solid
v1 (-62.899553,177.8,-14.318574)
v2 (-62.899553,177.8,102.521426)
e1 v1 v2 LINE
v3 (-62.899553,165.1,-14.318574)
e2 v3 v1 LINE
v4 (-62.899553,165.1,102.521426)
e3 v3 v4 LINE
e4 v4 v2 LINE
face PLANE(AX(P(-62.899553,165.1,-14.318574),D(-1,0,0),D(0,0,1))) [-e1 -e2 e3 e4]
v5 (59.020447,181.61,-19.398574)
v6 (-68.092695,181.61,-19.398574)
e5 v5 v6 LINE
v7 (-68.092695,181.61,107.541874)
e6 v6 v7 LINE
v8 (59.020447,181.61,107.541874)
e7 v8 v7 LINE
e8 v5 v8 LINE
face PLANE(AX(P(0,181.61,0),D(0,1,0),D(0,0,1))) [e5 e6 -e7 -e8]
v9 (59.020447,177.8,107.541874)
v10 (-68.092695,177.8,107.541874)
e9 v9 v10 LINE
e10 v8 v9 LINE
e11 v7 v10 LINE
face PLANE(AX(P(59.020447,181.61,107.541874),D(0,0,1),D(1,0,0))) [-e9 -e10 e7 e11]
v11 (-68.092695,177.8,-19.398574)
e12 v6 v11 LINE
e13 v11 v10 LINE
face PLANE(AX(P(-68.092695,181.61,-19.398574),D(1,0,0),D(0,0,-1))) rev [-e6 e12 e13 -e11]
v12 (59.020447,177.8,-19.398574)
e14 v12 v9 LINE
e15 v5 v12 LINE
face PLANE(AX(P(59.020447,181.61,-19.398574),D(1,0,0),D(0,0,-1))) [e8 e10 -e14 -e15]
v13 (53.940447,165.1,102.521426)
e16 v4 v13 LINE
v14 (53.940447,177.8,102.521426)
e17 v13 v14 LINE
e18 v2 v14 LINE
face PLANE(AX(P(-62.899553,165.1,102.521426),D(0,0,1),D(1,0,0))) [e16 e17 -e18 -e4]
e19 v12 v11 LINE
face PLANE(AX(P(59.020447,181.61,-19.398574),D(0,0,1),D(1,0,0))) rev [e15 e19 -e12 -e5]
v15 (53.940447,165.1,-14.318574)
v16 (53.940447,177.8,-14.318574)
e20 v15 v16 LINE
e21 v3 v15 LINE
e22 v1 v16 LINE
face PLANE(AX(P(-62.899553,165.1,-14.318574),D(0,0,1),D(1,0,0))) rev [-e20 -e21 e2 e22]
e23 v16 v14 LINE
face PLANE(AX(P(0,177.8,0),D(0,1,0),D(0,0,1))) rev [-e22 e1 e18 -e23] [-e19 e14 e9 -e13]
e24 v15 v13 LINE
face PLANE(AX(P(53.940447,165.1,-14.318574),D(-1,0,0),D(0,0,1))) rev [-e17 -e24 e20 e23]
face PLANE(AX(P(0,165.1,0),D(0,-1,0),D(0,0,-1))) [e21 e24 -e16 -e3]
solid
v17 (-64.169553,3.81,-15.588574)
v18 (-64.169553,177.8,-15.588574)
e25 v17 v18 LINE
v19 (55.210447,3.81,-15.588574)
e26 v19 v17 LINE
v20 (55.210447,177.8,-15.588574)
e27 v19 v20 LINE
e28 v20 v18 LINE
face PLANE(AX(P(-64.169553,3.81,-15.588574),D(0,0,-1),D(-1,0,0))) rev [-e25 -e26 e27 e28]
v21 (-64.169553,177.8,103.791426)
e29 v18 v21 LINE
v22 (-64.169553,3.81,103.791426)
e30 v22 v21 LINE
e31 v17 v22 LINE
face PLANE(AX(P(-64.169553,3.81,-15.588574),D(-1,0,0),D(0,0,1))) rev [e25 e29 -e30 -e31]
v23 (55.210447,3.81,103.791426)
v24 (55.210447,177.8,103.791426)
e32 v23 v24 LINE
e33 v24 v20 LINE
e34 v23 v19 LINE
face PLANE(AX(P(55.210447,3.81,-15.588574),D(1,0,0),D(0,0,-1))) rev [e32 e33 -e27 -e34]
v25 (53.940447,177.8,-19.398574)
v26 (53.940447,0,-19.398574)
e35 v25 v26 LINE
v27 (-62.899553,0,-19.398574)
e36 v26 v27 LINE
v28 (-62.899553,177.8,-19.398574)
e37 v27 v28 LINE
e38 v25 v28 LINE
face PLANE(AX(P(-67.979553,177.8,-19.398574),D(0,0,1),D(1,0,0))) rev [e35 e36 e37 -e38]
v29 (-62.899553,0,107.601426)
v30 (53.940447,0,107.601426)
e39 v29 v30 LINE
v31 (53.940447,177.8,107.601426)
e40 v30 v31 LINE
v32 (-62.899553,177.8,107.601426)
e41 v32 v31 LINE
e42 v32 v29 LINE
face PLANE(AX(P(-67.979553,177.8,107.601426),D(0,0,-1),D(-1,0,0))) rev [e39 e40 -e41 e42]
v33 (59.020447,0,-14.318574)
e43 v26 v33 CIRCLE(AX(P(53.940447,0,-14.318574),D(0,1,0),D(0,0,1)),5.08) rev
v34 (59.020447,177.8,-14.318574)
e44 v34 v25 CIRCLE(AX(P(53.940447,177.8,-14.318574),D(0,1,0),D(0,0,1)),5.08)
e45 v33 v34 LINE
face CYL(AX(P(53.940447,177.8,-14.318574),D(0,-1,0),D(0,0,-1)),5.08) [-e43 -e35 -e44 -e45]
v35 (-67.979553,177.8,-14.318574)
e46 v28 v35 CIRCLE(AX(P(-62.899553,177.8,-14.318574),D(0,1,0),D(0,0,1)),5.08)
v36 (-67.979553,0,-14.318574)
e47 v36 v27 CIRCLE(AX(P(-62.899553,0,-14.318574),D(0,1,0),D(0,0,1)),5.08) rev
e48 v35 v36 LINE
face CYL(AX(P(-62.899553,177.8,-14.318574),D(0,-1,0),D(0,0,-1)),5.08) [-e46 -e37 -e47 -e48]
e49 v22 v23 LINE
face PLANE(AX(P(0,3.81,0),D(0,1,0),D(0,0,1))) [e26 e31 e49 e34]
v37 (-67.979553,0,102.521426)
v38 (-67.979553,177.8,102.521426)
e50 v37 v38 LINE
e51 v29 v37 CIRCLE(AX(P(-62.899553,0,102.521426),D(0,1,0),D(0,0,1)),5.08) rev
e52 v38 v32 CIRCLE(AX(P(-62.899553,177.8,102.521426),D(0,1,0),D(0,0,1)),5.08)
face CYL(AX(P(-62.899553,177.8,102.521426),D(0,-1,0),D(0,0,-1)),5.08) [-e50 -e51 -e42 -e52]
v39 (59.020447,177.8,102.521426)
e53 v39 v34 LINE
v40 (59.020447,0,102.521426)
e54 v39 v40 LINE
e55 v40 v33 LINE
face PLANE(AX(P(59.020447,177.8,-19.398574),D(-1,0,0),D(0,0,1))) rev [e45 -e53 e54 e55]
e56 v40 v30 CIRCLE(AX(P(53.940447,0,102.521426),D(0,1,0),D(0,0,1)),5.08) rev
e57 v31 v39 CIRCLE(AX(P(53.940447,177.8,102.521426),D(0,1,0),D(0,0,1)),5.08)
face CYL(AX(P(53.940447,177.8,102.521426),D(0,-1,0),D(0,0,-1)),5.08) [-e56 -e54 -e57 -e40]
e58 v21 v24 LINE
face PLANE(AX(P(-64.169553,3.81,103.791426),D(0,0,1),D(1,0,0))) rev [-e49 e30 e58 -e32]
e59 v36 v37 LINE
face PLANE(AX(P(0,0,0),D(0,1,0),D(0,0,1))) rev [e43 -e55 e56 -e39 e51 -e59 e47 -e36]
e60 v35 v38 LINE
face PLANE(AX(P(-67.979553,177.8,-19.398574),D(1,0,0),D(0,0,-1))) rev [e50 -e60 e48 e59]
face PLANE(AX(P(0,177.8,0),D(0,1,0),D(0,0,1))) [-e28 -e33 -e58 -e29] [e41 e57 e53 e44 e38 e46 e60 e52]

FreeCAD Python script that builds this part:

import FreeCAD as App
import Part
import Sketcher

V = App.Vector
Q = App.Units.Quantity


def edges_at(feature, points):
    """Names of the edges that pass closest to the given points."""
    edges = feature.Shape.Edges
    near = lambda p: min(range(len(edges)), key=lambda i: edges[i].distToShape(Part.Vertex(*p))[0])
    return sorted({f"Edge{near(p) + 1}" for p in points})


def add_polygon(sketch, points):
    """Adds a closed chain of lines whose ends are joined by coincident constraints."""
    first, n = sketch.GeometryCount, len(points)
    for a, b in zip(points, points[1:] + points[:1]):
        sketch.addGeometry(Part.LineSegment(App.Vector(*a, 0), App.Vector(*b, 0)), False)
    for i in range(n):
        sketch.addConstraint(Sketcher.Constraint("Coincident", first + i, 2, first + (i + 1) % n, 1))

doc = App.newDocument("Part")
params = doc.addObject("Spreadsheet::Sheet", "Params")
for row, (alias, value) in enumerate([
    ("sketch1_width", "5 in"),
    ("pad1_length", "7 in"),
    ("sketch2_width", "4.7 in"),
    ("pocket1_length", "6.85 in"),
    ("fillet_radius", "0.2 in"),
    ("sketch3_width", "4.6 in"),
    ("pad2_length", "0.5 in"),
    ("pad3_length", "0.15 in"),
], start=1):
    params.set(f"A{row}", alias)
    params.set(f"B{row}", "=" + value)
    params.setAlias(f"B{row}", alias)

body = doc.addObject("PartDesign::Body", "Body")

# Sketch on XZ plane
sketch1 = body.newObject("Sketcher::SketchObject", "Sketch")
sketch1.AttachmentSupport = (doc.getObject("XZ_Plane"), [""])
sketch1.MapMode = "FlatFace"
add_polygon(sketch1, [(-68, -19), (-68, 108), (59, 108), (59, -19)])  # lines 0-3
sketch1.addConstraint([
    Sketcher.Constraint("Vertical", 0),
    Sketcher.Constraint("Horizontal", 1),
    Sketcher.Constraint("Vertical", 2),
    Sketcher.Constraint("Horizontal", 3),
    Sketcher.Constraint("Equal", 3, 0),
    Sketcher.Constraint("DistanceX", 1, 1, 1, 2, Q("5 in")),
    Sketcher.Constraint("DistanceX", 0, 2, -1, 1, 67.979553),
    Sketcher.Constraint("DistanceY", -1, 1, 0, 2, 107.601426),
])
sketch1.setExpression("Constraints[9]", "Params.sketch1_width")
pad1 = body.newObject("PartDesign::Pad", "Pad")
pad1.Profile = sketch1
pad1.setExpression("Length", "Params.pad1_length")
pad1.Reversed = True

# Sketch on XZ plane
sketch2 = body.newObject("Sketcher::SketchObject", "Sketch001")
sketch2.AttachmentSupport = (doc.getObject("XZ_Plane"), [""])
sketch2.MapMode = "FlatFace"
sketch2.AttachmentOffset = App.Placement(V(0, 0, -7 * 25.4), App.Rotation())
add_polygon(sketch2, [(-64, -16), (-64, 104), (55, 104), (55, -16)])  # lines 0-3
sketch2.addConstraint([
    Sketcher.Constraint("Vertical", 0),
    Sketcher.Constraint("Horizontal", 1),
    Sketcher.Constraint("Vertical", 2),
    Sketcher.Constraint("Horizontal", 3),
    Sketcher.Constraint("Equal", 3, 0),
    Sketcher.Constraint("DistanceX", 1, 1, 1, 2, Q("4.7 in")),
    Sketcher.Constraint("DistanceX", 0, 2, -1, 1, 64.169553),
    Sketcher.Constraint("DistanceY", -1, 1, 0, 2, 103.791426),
])
sketch2.setExpression("Constraints[9]", "Params.sketch2_width")
pocket1 = body.newObject("PartDesign::Pocket", "Pocket")
pocket1.Profile = sketch2
pocket1.setExpression("Length", "Params.pocket1_length")
pocket1.Reversed = True
doc.recompute()

fillet = body.newObject("PartDesign::Fillet", "Fillet")
fillet.Base = (pocket1, edges_at(pocket1, [
    (-67.98, 88.9, -19.399),
    (59.02, 88.9, -19.399),
    (59.02, 88.9, 107.601),
    (-67.98, 88.9, 107.601),
]))
fillet.setExpression("Radius", "Params.fillet_radius")
body2 = doc.addObject("PartDesign::Body", "Body001")

# Sketch on XZ plane
sketch3 = body2.newObject("Sketcher::SketchObject", "Sketch002")
sketch3.AttachmentSupport = (doc.getObject("XZ_Plane001"), [""])
sketch3.MapMode = "FlatFace"
sketch3.AttachmentOffset = App.Placement(V(0, 0, -7 * 25.4), App.Rotation())
add_polygon(sketch3, [(-63, -14), (-63, 103), (54, 103), (54, -14)])  # lines 0-3
sketch3.addConstraint([
    Sketcher.Constraint("Vertical", 0),
    Sketcher.Constraint("Horizontal", 1),
    Sketcher.Constraint("Vertical", 2),
    Sketcher.Constraint("Horizontal", 3),
    Sketcher.Constraint("Equal", 3, 0),
    Sketcher.Constraint("DistanceX", 1, 1, 1, 2, Q("4.6 in")),
    Sketcher.Constraint("DistanceX", 0, 2, -1, 1, 62.899553),
    Sketcher.Constraint("DistanceY", -1, 1, 0, 2, 102.521426),
])
sketch3.setExpression("Constraints[9]", "Params.sketch3_width")
pad2 = body2.newObject("PartDesign::Pad", "Pad001")
pad2.Profile = sketch3
pad2.setExpression("Length", "Params.pad2_length")
body3 = doc.addObject("PartDesign::Body", "Body002")

# Sketch on XZ plane
sketch4 = body3.newObject("Sketcher::SketchObject", "Sketch003")
sketch4.AttachmentSupport = (doc.getObject("XZ_Plane002"), [""])
sketch4.MapMode = "FlatFace"
sketch4.AttachmentOffset = App.Placement(V(0, 0, -7 * 25.4), App.Rotation())
add_polygon(sketch4, [(-68, -19), (-68, 108), (59, 108), (59, -19)])  # lines 0-3
sketch4.addConstraint([
    Sketcher.Constraint("Vertical", 0),
    Sketcher.Constraint("Horizontal", 1),
    Sketcher.Constraint("Vertical", 2),
    Sketcher.Constraint("Horizontal", 3),
    Sketcher.Constraint("DistanceX", 1, 1, 1, 2, 127.113142),
    Sketcher.Constraint("DistanceY", 0, 1, 0, 2, 126.940447),
    Sketcher.Constraint("DistanceX", 0, 2, -1, 1, 68.092695),
    Sketcher.Constraint("DistanceY", -1, 1, 0, 2, 107.541874),
])
pad3 = body3.newObject("PartDesign::Pad", "Pad002")
pad3.Profile = sketch4
pad3.setExpression("Length", "Params.pad3_length")
pad3.Reversed = True
doc.recompute()

boolean = body3.newObject("PartDesign::Boolean", "Boolean")
boolean.Type = "Fuse"
boolean.addObjects([body2])

doc.recompute()
